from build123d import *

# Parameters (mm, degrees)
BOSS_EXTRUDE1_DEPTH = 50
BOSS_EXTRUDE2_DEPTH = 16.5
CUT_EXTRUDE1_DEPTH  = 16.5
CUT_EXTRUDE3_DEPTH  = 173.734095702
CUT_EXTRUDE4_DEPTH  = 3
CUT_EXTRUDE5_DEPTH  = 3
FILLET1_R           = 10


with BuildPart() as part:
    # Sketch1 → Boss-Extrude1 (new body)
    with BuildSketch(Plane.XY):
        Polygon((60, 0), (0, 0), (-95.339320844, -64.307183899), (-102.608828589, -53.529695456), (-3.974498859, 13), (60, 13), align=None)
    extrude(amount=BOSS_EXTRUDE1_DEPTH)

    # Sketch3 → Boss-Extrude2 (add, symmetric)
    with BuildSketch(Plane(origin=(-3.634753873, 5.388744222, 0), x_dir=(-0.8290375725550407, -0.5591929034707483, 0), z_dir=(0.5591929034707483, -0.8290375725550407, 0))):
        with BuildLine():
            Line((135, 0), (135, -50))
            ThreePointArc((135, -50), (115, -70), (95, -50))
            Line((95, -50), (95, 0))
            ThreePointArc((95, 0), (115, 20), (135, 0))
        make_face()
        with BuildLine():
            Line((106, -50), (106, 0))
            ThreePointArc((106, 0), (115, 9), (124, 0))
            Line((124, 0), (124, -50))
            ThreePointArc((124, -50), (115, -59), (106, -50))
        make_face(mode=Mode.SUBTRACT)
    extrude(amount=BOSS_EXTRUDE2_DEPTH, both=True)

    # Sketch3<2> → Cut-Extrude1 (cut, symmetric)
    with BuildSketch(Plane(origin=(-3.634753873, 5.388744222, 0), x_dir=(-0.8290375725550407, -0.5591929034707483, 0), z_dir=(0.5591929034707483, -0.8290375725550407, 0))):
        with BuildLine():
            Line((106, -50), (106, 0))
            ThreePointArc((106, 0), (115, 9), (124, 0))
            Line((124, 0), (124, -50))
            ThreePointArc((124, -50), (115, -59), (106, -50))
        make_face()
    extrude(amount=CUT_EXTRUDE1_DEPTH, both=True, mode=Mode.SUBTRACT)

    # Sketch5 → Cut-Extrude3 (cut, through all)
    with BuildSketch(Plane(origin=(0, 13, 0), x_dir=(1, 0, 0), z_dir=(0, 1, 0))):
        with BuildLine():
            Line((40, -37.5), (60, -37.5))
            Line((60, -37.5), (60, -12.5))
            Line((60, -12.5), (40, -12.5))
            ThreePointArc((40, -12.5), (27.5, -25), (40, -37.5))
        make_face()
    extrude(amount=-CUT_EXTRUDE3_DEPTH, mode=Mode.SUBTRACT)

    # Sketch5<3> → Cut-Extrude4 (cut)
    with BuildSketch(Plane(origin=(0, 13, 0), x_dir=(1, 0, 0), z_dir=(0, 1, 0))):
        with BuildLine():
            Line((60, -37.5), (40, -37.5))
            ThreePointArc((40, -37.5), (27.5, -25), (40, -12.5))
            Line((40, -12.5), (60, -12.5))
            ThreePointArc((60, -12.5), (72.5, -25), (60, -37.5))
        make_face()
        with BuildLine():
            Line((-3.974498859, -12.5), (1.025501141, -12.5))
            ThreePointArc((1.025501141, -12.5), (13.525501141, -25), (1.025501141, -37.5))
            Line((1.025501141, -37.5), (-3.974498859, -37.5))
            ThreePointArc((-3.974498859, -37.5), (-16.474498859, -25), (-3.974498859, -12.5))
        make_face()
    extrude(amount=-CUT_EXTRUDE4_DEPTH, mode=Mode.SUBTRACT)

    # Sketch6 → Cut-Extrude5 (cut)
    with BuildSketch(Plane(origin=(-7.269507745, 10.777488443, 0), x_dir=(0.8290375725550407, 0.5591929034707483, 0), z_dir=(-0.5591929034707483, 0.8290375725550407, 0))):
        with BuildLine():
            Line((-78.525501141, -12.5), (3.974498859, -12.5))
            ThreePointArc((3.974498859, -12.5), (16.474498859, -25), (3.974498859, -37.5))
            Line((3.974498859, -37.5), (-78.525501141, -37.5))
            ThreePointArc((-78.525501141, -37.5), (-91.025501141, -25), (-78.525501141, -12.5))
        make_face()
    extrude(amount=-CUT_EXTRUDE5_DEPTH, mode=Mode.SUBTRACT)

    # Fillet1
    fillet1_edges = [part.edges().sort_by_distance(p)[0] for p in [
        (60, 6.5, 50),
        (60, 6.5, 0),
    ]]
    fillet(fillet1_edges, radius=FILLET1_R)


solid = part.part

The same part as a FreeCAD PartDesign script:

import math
import FreeCAD as App
import Part
import Sketcher

V = App.Vector
Q = App.Units.Quantity


def edges_at(feature, points):
    """Names of the edges that pass closest to the given points."""
    edges = feature.Shape.Edges
    near = lambda p: min(range(len(edges)), key=lambda i: edges[i].distToShape(Part.Vertex(*p))[0])
    return sorted({f"Edge{near(p) + 1}" for p in points})

doc = App.newDocument("Part")
body = doc.addObject("PartDesign::Body", "Body")

# Sketch on XY plane
sketch1 = body.newObject("Sketcher::SketchObject", "Sketch")
sketch1.AttachmentSupport = (doc.getObject("XY_Plane"), [""])
sketch1.MapMode = "FlatFace"
sketch1.addGeometry(Part.LineSegment(V(0, 0, 0), V(60, 0, 0)), False)
sketch1.addGeometry(Part.LineSegment(V(60, 0, 0), V(60, 13, 0)), False)
sketch1.addGeometry(Part.LineSegment(V(60, 13, 0), V(-4, 13, 0)), False)
sketch1.addGeometry(Part.LineSegment(V(-4, 13, 0), V(-103, -54, 0)), False)
sketch1.addGeometry(Part.LineSegment(V(-103, -54, 0), V(-95, -64, 0)), False)
sketch1.addGeometry(Part.LineSegment(V(-95, -64, 0), V(0, 0, 0)), False)
sketch1.addConstraint(Sketcher.Constraint("Coincident", 0, 2, 1, 1))
sketch1.addConstraint(Sketcher.Constraint("Coincident", 1, 2, 2, 1))
sketch1.addConstraint(Sketcher.Constraint("Coincident", 2, 2, 3, 1))
sketch1.addConstraint(Sketcher.Constraint("Coincident", 3, 2, 4, 1))
sketch1.addConstraint(Sketcher.Constraint("Coincident", 4, 2, 5, 1))
sketch1.addConstraint(Sketcher.Constraint("Coincident", 5, 2, 0, 1))
sketch1.addConstraint(Sketcher.Constraint("Horizontal", 0))
sketch1.addConstraint(Sketcher.Constraint("Vertical", 1))
sketch1.addConstraint(Sketcher.Constraint("Horizontal", 2))
sketch1.addConstraint(Sketcher.Constraint("Coincident", 5, 2, -1, 1))
sketch1.addConstraint(Sketcher.Constraint("Perpendicular", 3, 4))
sketch1.addConstraint(Sketcher.Constraint("Perpendicular", 4, 5))
sketch1.addConstraint(Sketcher.Constraint("DistanceX", 0, 1, 0, 2, Q("60 mm")))
sketch1.addConstraint(Sketcher.Constraint("DistanceY", 1, 1, 1, 2, Q("13 mm")))
sketch1.addConstraint(Sketcher.Constraint("Angle", 3, Q("-146 deg")))
sketch1.addConstraint(Sketcher.Constraint("Distance", 4, Q("13 mm")))
sketch1.addConstraint(Sketcher.Constraint("Distance", 5, Q("115 mm")))
pad1 = body.newObject("PartDesign::Pad", "Pad")
pad1.Profile = sketch1
pad1.Length = 50

# Sketch on an angled plane
sketch2 = body.newObject("Sketcher::SketchObject", "Sketch001")
sketch2.Placement = App.Placement(V(-3.634754, 5.388744, 0), App.Rotation(V(-0.829037573, -0.559192903, 0), V(0, 0, -1), V(0.559192903, -0.829037573, 0), "ZXY"))
sketch2.addGeometry(Part.LineSegment(V(135, -50, 0), V(135, 0, 0)), False)
sketch2.addGeometry(Part.ArcOfCircle(Part.Circle(V(115, 0, 0), V(0, 0, 1), 20), math.radians(0), math.radians(180)), False)
sketch2.addGeometry(Part.LineSegment(V(95, 0, 0), V(95, -50, 0)), False)
sketch2.addGeometry(Part.ArcOfCircle(Part.Circle(V(115, -50, 0), V(0, 0, 1), 20), math.radians(180), math.radians(360)), False)
sketch2.addGeometry(Part.LineSegment(V(106, -50, 0), V(106, 0, 0)), False)
sketch2.addGeometry(Part.ArcOfCircle(Part.Circle(V(115, 0, 0), V(0, 0, 1), 9), math.radians(0), math.radians(180)), False)
sketch2.addGeometry(Part.LineSegment(V(124, 0, 0), V(124, -50, 0)), False)
sketch2.addGeometry(Part.ArcOfCircle(Part.Circle(V(115, -50, 0), V(0, 0, 1), 9), math.radians(180), math.radians(360)), False)
sketch2.addConstraint(Sketcher.Constraint("Tangent", 0, 2, 1, 1))
sketch2.addConstraint(Sketcher.Constraint("Tangent", 1, 2, 2, 1))
sketch2.addConstraint(Sketcher.Constraint("Tangent", 2, 2, 3, 1))
sketch2.addConstraint(Sketcher.Constraint("Tangent", 3, 2, 0, 1))
sketch2.addConstraint(Sketcher.Constraint("Tangent", 4, 2, 5, 2))
sketch2.addConstraint(Sketcher.Constraint("Tangent", 5, 1, 6, 1))
sketch2.addConstraint(Sketcher.Constraint("Tangent", 6, 2, 7, 2))
sketch2.addConstraint(Sketcher.Constraint("Tangent", 7, 1, 4, 1))
sketch2.addConstraint(Sketcher.Constraint("Vertical", 0))
sketch2.addConstraint(Sketcher.Constraint("Vertical", 2))
sketch2.addConstraint(Sketcher.Constraint("Vertical", 4))
sketch2.addConstraint(Sketcher.Constraint("Vertical", 6))
sketch2.addConstraint(Sketcher.Constraint("Coincident", 5, 3, 1, 3))
sketch2.addConstraint(Sketcher.Constraint("PointOnObject", 1, 3, -1))
sketch2.addConstraint(Sketcher.Constraint("Horizontal", 7, 3, 2, 2))
sketch2.addConstraint(Sketcher.Constraint("Radius", 1, Q("20 mm")))
sketch2.addConstraint(Sketcher.Constraint("Radius", 5, Q("9 mm")))
sketch2.addConstraint(Sketcher.Constraint("DistanceY", 0, 1, 0, 2, Q("50 mm")))
sketch2.addConstraint(Sketcher.Constraint("DistanceX", -1, 1, 1, 3, Q("115 mm")))
pad2 = body.newObject("PartDesign::Pad", "Pad001")
pad2.Profile = sketch2
pad2.Length = 33
pad2.Midplane = True

# Sketch on an angled plane
sketch3 = body.newObject("Sketcher::SketchObject", "Sketch002")
sketch3.Placement = App.Placement(V(-3.634754, 5.388744, 0), App.Rotation(V(-0.829037573, -0.559192903, 0), V(0, 0, -1), V(0.559192903, -0.829037573, 0), "ZXY"))
sketch3.addGeometry(Part.LineSegment(V(106, 0, 0), V(106, -50, 0)), False)
sketch3.addGeometry(Part.ArcOfCircle(Part.Circle(V(115, -50, 0), V(0, 0, 1), 9), math.radians(180), math.radians(360)), False)
sketch3.addGeometry(Part.LineSegment(V(124, -50, 0), V(124, 0, 0)), False)
sketch3.addGeometry(Part.ArcOfCircle(Part.Circle(V(115, 0, 0), V(0, 0, 1), 9), math.radians(0), math.radians(180)), False)
sketch3.addConstraint(Sketcher.Constraint("Tangent", 0, 2, 1, 1))
sketch3.addConstraint(Sketcher.Constraint("Tangent", 1, 2, 2, 1))
sketch3.addConstraint(Sketcher.Constraint("Tangent", 2, 2, 3, 1))
sketch3.addConstraint(Sketcher.Constraint("Tangent", 3, 2, 0, 1))
sketch3.addConstraint(Sketcher.Constraint("Vertical", 0))
sketch3.addConstraint(Sketcher.Constraint("Vertical", 2))
sketch3.addConstraint(Sketcher.Constraint("PointOnObject", 3, 3, -1))
sketch3.addConstraint(Sketcher.Constraint("Radius", 1, Q("9 mm")))
sketch3.addConstraint(Sketcher.Constraint("DistanceY", 0, 2, 0, 1, Q("50 mm")))
sketch3.addConstraint(Sketcher.Constraint("DistanceX", -1, 1, 1, 3, Q("115 mm")))
pocket1 = body.newObject("PartDesign::Pocket", "Pocket")
pocket1.Profile = sketch3
pocket1.Length = 33
pocket1.Midplane = True

# Sketch on XZ plane
sketch4 = body.newObject("Sketcher::SketchObject", "Sketch003")
sketch4.AttachmentSupport = (doc.getObject("XZ_Plane"), [""])
sketch4.MapMode = "FlatFace"
sketch4.AttachmentOffset = App.Placement(V(0, 0, -13), App.Rotation())
sketch4.addGeometry(Part.LineSegment(V(40, 38, 0), V(60, 38, 0)), False)
sketch4.addGeometry(Part.LineSegment(V(60, 38, 0), V(60, 12, 0)), False)
sketch4.addGeometry(Part.LineSegment(V(60, 12, 0), V(40, 12, 0)), False)
sketch4.addGeometry(Part.ArcOfCircle(Part.Circle(V(40, 25, 0), V(0, 0, 1), 12), math.radians(90), math.radians(270)), False)
sketch4.addConstraint(Sketcher.Constraint("Coincident", 0, 2, 1, 1))
sketch4.addConstraint(Sketcher.Constraint("Coincident", 1, 2, 2, 1))
sketch4.addConstraint(Sketcher.Constraint("Tangent", 2, 2, 3, 2))
sketch4.addConstraint(Sketcher.Constraint("Tangent", 3, 1, 0, 1))
sketch4.addConstraint(Sketcher.Constraint("Horizontal", 0))
sketch4.addConstraint(Sketcher.Constraint("Vertical", 1))
sketch4.addConstraint(Sketcher.Constraint("Horizontal", 2))
sketch4.addConstraint(Sketcher.Constraint("Radius", 3, Q("12.5 mm")))
sketch4.addConstraint(Sketcher.Constraint("DistanceX", 0, 1, 0, 2, Q("20 mm")))
sketch4.addConstraint(Sketcher.Constraint("DistanceX", -1, 1, 3, 3, Q("40 mm")))
sketch4.addConstraint(Sketcher.Constraint("DistanceY", -1, 1, 3, 3, Q("25 mm")))
pocket2 = body.newObject("PartDesign::Pocket", "Pocket001")
pocket2.Profile = sketch4
pocket2.Type = "ThroughAll"
pocket2.Reversed = True

# Sketch on XZ plane
sketch5 = body.newObject("Sketcher::SketchObject", "Sketch004")
sketch5.AttachmentSupport = (doc.getObject("XZ_Plane"), [""])
sketch5.MapMode = "FlatFace"
sketch5.AttachmentOffset = App.Placement(V(0, 0, -13), App.Rotation())
sketch5.addGeometry(Part.LineSegment(V(40, 38, 0), V(60, 38, 0)), False)
sketch5.addGeometry(Part.ArcOfCircle(Part.Circle(V(60, 25, 0), V(0, 0, 1), 12), math.radians(-90), math.radians(90)), False)
sketch5.addGeometry(Part.LineSegment(V(60, 12, 0), V(40, 12, 0)), False)
sketch5.addGeometry(Part.ArcOfCircle(Part.Circle(V(40, 25, 0), V(0, 0, 1), 12), math.radians(90), math.radians(270)), False)
sketch5.addGeometry(Part.LineSegment(V(1, 12, 0), V(-4, 12, 0)), False)
sketch5.addGeometry(Part.ArcOfCircle(Part.Circle(V(-4, 25, 0), V(0, 0, 1), 12), math.radians(90), math.radians(270)), False)
sketch5.addGeometry(Part.LineSegment(V(-4, 38, 0), V(1, 38, 0)), False)
sketch5.addGeometry(Part.ArcOfCircle(Part.Circle(V(1, 25, 0), V(0, 0, 1), 12), math.radians(-90), math.radians(90)), False)
sketch5.addConstraint(Sketcher.Constraint("Tangent", 0, 2, 1, 2))
sketch5.addConstraint(Sketcher.Constraint("Tangent", 1, 1, 2, 1))
sketch5.addConstraint(Sketcher.Constraint("Tangent", 2, 2, 3, 2))
sketch5.addConstraint(Sketcher.Constraint("Tangent", 3, 1, 0, 1))
sketch5.addConstraint(Sketcher.Constraint("Tangent", 4, 2, 5, 2))
sketch5.addConstraint(Sketcher.Constraint("Tangent", 5, 1, 6, 1))
sketch5.addConstraint(Sketcher.Constraint("Tangent", 6, 2, 7, 2))
sketch5.addConstraint(Sketcher.Constraint("Tangent", 7, 1, 4, 1))
sketch5.addConstraint(Sketcher.Constraint("Horizontal", 0))
sketch5.addConstraint(Sketcher.Constraint("Horizontal", 2))
sketch5.addConstraint(Sketcher.Constraint("Horizontal", 4))
sketch5.addConstraint(Sketcher.Constraint("Horizontal", 6))
sketch5.addConstraint(Sketcher.Constraint("Equal", 3, 5))
sketch5.addConstraint(Sketcher.Constraint("Horizontal", 3, 3, 5, 3))
sketch5.addConstraint(Sketcher.Constraint("Radius", 1, Q("12.5 mm")))
sketch5.addConstraint(Sketcher.Constraint("DistanceX", 0, 1, 0, 2, Q("20 mm")))
sketch5.addConstraint(Sketcher.Constraint("DistanceX", 4, 2, 4, 1, Q("5 mm")))
sketch5.addConstraint(Sketcher.Constraint("DistanceX", -1, 1, 1, 3, Q("60 mm")))
sketch5.addConstraint(Sketcher.Constraint("DistanceY", -1, 1, 1, 3, Q("25 mm")))
sketch5.addConstraint(Sketcher.Constraint("DistanceX", 5, 3, -1, 1, Q("3.974499 mm")))
pocket3 = body.newObject("PartDesign::Pocket", "Pocket002")
pocket3.Profile = sketch5
pocket3.Length = 3
pocket3.Reversed = True

# Sketch on an angled plane
sketch6 = body.newObject("Sketcher::SketchObject", "Sketch005")
sketch6.Placement = App.Placement(V(-7.269508, 10.777488, 0), App.Rotation(V(0.829037573, 0.559192903, 0), V(0, 0, -1), V(-0.559192903, 0.829037573, 0), "ZXY"))
sketch6.addGeometry(Part.LineSegment(V(4, -13, 0), V(-79, -13, 0)), False)
sketch6.addGeometry(Part.ArcOfCircle(Part.Circle(V(-79, -25, 0), V(0, 0, 1), 12), math.radians(90), math.radians(270)), False)
sketch6.addGeometry(Part.LineSegment(V(-79, -38, 0), V(4, -38, 0)), False)
sketch6.addGeometry(Part.ArcOfCircle(Part.Circle(V(4, -25, 0), V(0, 0, 1), 12), math.radians(-90), math.radians(90)), False)
sketch6.addConstraint(Sketcher.Constraint("Tangent", 0, 2, 1, 1))
sketch6.addConstraint(Sketcher.Constraint("Tangent", 1, 2, 2, 1))
sketch6.addConstraint(Sketcher.Constraint("Tangent", 2, 2, 3, 1))
sketch6.addConstraint(Sketcher.Constraint("Tangent", 3, 2, 0, 1))
sketch6.addConstraint(Sketcher.Constraint("Horizontal", 0))
sketch6.addConstraint(Sketcher.Constraint("Horizontal", 2))
sketch6.addConstraint(Sketcher.Constraint("Radius", 1, Q("12.5 mm")))
sketch6.addConstraint(Sketcher.Constraint("DistanceX", 0, 2, 0, 1, Q("82.5 mm")))
sketch6.addConstraint(Sketcher.Constraint("DistanceY", 1, 3, -1, 1, Q("25 mm")))
sketch6.addConstraint(Sketcher.Constraint("DistanceX", 1, 3, -1, 1, Q("78.525501 mm")))
pocket4 = body.newObject("PartDesign::Pocket", "Pocket003")
pocket4.Profile = sketch6
pocket4.Length = 3
doc.recompute()

fillet = body.newObject("PartDesign::Fillet", "Fillet")
fillet.Base = (pocket4, edges_at(pocket4, [(60, 6.5, 50), (60, 6.5, 0)]))
fillet.Radius = 10

doc.recompute()
